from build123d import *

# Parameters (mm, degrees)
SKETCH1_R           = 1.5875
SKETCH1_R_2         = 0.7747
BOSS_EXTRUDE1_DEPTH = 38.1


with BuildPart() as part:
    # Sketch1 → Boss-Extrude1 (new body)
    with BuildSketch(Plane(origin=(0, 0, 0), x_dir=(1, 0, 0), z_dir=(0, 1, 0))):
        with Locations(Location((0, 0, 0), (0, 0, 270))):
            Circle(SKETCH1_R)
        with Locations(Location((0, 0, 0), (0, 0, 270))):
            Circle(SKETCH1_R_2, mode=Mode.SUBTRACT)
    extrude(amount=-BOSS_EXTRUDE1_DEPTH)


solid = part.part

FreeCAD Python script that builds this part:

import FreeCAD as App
import Part
import Sketcher
from FreeCAD import Vector
Q = App.Units.Quantity

doc = App.newDocument("Part")
body = doc.addObject("PartDesign::Body", "Body")

sketch1 = body.newObject("Sketcher::SketchObject", "Sketch")
sketch1.AttachmentSupport = (doc.getObject("XZ_Plane"), [""])
sketch1.MapMode = "FlatFace"
sketch1.addGeometry([
    Part.Circle(Vector(0, 0, 0), Vector(0, 0, 1), 1.6),
    Part.Circle(Vector(0, 0, 0), Vector(0, 0, 1), 0.8),
], False)
sketch1.addConstraint([
    Sketcher.Constraint("Coincident", 0, 3, -1, 1),
    Sketcher.Constraint("Coincident", 1, 3, -1, 1),
    Sketcher.Constraint("Diameter", 0, Q("0.125 in")),
    Sketcher.Constraint("Diameter", 1, Q("0.061 in")),
])
pad1 = body.newObject("PartDesign::Pad", "Pad")
pad1.Profile = sketch1
pad1.Length = Q("1.5 in")

doc.recompute()
